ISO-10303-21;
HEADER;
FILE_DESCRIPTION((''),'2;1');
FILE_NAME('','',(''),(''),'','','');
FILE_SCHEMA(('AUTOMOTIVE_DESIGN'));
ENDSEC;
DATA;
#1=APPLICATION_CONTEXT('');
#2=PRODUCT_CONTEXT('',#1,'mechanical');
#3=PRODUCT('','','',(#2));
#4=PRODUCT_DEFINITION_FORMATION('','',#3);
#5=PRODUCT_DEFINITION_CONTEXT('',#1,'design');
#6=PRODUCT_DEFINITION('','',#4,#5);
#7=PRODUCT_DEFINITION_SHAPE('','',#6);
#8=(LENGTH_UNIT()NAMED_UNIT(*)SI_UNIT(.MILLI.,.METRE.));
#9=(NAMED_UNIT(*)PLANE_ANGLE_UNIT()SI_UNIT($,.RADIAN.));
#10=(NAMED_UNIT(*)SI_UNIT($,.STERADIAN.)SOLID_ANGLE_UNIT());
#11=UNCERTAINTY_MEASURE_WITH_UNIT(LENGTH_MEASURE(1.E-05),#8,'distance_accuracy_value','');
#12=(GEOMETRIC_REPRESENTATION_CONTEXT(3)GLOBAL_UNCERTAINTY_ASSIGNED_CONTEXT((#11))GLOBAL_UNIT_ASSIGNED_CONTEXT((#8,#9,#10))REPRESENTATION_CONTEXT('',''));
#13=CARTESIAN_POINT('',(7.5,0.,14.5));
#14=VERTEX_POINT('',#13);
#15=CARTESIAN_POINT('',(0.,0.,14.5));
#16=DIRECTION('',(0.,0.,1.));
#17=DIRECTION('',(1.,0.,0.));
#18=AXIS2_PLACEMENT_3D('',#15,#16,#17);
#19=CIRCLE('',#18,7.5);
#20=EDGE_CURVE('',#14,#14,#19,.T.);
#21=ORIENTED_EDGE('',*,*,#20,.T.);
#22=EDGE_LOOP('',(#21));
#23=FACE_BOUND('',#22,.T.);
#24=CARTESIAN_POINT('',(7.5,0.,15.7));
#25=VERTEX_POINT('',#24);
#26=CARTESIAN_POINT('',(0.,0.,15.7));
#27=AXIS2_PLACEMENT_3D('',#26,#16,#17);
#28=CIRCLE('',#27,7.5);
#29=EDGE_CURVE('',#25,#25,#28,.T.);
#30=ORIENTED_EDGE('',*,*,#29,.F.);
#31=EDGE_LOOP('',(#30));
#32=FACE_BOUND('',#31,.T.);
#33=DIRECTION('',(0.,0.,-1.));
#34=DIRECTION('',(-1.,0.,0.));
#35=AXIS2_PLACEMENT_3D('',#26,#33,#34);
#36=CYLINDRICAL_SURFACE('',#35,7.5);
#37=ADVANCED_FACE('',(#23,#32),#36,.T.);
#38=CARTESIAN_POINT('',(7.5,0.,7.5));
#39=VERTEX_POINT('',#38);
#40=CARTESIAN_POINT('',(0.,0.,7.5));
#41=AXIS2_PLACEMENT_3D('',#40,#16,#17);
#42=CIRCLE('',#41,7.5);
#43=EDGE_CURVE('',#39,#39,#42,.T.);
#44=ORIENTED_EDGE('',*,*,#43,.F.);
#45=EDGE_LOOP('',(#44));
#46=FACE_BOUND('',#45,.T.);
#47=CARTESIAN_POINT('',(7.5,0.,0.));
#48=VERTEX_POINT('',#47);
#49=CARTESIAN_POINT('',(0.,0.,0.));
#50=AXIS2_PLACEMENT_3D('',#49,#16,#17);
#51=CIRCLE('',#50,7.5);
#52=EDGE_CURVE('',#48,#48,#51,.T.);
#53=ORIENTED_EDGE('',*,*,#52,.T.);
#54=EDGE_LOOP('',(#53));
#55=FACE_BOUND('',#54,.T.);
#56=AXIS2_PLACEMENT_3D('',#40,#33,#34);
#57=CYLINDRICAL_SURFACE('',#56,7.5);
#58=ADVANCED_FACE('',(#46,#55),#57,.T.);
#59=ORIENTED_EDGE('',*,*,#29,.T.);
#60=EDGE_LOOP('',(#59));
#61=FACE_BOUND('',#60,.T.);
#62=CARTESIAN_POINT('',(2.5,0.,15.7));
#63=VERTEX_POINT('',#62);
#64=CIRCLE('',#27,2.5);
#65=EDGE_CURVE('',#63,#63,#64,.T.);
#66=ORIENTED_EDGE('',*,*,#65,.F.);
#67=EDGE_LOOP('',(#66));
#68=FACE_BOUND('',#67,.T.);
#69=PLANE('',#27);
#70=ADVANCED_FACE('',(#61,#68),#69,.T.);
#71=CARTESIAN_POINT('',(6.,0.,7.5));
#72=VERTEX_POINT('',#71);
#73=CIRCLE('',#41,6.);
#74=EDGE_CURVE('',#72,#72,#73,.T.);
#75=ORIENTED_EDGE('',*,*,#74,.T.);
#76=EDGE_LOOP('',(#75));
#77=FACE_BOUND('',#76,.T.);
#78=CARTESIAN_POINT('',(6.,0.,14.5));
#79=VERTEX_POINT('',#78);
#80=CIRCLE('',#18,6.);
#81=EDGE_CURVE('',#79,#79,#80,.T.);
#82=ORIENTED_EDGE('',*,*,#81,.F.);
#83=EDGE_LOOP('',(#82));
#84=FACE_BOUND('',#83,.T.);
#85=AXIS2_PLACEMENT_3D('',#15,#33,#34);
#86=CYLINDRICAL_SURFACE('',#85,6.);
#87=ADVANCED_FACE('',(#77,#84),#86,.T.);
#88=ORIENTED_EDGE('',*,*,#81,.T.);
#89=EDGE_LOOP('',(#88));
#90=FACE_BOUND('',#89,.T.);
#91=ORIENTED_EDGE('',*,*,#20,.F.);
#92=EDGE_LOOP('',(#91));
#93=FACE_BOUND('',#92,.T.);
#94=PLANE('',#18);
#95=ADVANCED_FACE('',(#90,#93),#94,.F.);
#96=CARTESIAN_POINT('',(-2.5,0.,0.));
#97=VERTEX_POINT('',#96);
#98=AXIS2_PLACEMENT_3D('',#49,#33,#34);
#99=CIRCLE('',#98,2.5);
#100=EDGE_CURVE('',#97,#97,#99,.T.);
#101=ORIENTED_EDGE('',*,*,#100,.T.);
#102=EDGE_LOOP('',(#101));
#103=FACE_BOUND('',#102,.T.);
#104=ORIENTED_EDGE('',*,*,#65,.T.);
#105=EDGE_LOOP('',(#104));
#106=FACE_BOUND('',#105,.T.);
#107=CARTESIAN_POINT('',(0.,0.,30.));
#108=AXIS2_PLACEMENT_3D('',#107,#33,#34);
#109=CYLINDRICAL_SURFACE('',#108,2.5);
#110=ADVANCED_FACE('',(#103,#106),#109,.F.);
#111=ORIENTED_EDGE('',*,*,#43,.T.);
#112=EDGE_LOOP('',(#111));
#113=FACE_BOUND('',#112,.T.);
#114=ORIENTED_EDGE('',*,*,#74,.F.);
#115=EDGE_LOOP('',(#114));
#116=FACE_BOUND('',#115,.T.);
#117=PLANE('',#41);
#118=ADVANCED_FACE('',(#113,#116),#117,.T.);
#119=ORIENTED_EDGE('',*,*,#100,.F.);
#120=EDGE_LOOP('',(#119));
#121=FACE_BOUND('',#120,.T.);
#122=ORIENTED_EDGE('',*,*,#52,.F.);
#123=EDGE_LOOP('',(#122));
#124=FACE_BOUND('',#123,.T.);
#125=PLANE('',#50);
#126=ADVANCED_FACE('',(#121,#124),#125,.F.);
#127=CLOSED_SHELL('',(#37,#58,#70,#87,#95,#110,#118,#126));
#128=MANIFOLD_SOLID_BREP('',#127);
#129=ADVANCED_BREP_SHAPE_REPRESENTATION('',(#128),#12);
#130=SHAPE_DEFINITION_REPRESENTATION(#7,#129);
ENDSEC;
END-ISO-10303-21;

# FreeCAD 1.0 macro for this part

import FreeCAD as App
import Part
import Sketcher
from FreeCAD import Vector
Q = App.Units.Quantity

doc = App.newDocument("Part")
body = doc.addObject("PartDesign::Body", "Body")

# Sketch on XY plane
sketch1 = body.newObject("Sketcher::SketchObject", "Sketch")
sketch1.AttachmentSupport = (doc.getObject("XY_Plane"), [""])
sketch1.MapMode = "FlatFace"
sketch1.addGeometry(Part.Circle(Vector(0, 0, 0), Vector(0, 0, 1), 7.5), False)
sketch1.addConstraint([
    Sketcher.Constraint("Coincident", 0, 3, -1, 1),
    Sketcher.Constraint("Diameter", 0, Q("15 mm")),
])
pad1 = body.newObject("PartDesign::Pad", "Pad")
pad1.Profile = sketch1
pad1.Length = 7.5

# Sketch on XY plane
sketch2 = body.newObject("Sketcher::SketchObject", "Sketch001")
sketch2.AttachmentSupport = (doc.getObject("XY_Plane"), [""])
sketch2.MapMode = "FlatFace"
sketch2.AttachmentOffset = App.Placement(Vector(0, 0, 7.5), App.Rotation())
sketch2.addGeometry(Part.Circle(Vector(0, 0, 0), Vector(0, 0, 1), 6), False)
sketch2.addConstraint([
    Sketcher.Constraint("Coincident", 0, 3, -1, 1),
    Sketcher.Constraint("Diameter", 0, Q("12 mm")),
])
pad2 = body.newObject("PartDesign::Pad", "Pad001")
pad2.Profile = sketch2
pad2.Length = 7

# Sketch on XY plane
sketch3 = body.newObject("Sketcher::SketchObject", "Sketch002")
sketch3.AttachmentSupport = (doc.getObject("XY_Plane"), [""])
sketch3.MapMode = "FlatFace"
sketch3.AttachmentOffset = App.Placement(Vector(0, 0, 14.5), App.Rotation())
sketch3.addGeometry(Part.Circle(Vector(0, 0, 0), Vector(0, 0, 1), 7.5), False)
sketch3.addConstraint([
    Sketcher.Constraint("Coincident", 0, 3, -1, 1),
    Sketcher.Constraint("Diameter", 0, Q("15 mm")),
])
pad3 = body.newObject("PartDesign::Pad", "Pad002")
pad3.Profile = sketch3
pad3.Length = 1.2

# Sketch on XY plane
sketch4 = body.newObject("Sketcher::SketchObject", "Sketch003")
sketch4.AttachmentSupport = (doc.getObject("XY_Plane"), [""])
sketch4.MapMode = "FlatFace"
sketch4.addGeometry(Part.Circle(Vector(0, 0, 0), Vector(0, 0, 1), 2.5), False)
sketch4.addConstraint([
    Sketcher.Constraint("Coincident", 0, 3, -1, 1),
    Sketcher.Constraint("Diameter", 0, Q("5 mm")),
])
pocket1 = body.newObject("PartDesign::Pocket", "Pocket")
pocket1.Profile = sketch4
pocket1.Length = 30
pocket1.Reversed = True

doc.recompute()
